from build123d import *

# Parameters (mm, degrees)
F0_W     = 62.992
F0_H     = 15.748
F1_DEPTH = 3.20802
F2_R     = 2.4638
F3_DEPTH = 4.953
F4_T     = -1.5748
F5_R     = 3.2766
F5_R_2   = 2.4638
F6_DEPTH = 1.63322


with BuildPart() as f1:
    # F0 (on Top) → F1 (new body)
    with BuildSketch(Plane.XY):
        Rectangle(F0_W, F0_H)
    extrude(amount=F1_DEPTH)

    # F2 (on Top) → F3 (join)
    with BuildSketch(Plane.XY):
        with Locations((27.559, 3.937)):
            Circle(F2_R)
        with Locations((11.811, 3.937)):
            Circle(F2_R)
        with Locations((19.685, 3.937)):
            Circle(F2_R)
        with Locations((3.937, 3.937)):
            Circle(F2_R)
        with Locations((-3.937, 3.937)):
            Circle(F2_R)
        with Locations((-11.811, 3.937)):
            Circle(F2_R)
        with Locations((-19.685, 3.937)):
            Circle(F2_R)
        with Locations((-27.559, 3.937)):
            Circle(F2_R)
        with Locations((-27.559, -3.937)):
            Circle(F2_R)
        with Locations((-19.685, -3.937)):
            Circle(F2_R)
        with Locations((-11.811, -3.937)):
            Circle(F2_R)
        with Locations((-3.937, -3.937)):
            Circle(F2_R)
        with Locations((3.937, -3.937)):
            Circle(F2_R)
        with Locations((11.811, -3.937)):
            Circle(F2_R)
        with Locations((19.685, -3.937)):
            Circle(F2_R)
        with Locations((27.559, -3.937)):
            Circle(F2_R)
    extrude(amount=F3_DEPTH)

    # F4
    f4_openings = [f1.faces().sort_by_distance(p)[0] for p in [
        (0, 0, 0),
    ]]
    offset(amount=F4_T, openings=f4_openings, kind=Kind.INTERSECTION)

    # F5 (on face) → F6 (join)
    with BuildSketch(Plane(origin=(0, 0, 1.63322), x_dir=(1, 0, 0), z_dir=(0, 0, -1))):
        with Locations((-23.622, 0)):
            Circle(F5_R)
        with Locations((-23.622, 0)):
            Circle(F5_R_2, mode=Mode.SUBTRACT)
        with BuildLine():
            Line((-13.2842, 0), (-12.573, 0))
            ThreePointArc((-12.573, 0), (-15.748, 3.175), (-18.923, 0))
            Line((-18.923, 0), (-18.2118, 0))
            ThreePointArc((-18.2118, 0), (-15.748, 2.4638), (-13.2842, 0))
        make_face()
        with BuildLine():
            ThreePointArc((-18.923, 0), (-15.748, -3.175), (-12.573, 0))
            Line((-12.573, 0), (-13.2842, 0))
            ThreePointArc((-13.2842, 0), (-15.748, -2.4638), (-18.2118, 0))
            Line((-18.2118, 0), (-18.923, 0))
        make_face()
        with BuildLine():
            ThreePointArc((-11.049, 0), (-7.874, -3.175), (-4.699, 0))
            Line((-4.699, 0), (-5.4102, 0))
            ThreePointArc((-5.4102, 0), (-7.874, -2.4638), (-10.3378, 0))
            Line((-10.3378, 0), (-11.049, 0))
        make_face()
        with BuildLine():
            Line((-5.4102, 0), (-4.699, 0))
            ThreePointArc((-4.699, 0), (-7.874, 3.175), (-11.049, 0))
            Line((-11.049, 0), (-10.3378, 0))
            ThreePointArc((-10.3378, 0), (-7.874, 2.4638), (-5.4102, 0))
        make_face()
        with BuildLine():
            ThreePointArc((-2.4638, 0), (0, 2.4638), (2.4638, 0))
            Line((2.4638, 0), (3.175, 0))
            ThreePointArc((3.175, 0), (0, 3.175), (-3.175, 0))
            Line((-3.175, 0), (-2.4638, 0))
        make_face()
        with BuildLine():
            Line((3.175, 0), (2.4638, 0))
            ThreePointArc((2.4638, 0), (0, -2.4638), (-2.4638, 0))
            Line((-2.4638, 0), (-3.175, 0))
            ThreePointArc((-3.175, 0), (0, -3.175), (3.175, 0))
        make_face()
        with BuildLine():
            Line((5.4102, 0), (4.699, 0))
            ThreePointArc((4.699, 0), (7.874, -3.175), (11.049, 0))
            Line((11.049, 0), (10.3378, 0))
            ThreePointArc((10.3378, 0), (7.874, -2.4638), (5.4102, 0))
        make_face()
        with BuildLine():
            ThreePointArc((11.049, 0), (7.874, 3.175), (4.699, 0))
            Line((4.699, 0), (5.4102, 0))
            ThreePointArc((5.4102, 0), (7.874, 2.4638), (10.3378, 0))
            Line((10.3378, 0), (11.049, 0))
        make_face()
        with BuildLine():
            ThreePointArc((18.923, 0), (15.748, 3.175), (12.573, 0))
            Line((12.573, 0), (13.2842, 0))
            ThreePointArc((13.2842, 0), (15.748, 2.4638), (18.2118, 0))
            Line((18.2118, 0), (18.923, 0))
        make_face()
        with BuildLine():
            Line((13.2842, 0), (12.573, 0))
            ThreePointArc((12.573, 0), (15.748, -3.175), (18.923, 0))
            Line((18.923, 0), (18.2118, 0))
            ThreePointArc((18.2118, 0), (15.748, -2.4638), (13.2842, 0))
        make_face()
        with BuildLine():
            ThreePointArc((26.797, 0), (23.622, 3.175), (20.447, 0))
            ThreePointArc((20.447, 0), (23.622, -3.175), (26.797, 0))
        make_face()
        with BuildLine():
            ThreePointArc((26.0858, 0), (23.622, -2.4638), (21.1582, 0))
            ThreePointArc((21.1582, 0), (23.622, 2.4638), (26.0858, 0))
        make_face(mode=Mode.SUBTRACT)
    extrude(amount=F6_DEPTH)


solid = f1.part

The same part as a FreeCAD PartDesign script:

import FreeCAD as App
import Part
import Sketcher

V = App.Vector
Q = App.Units.Quantity


def faces_at(feature, points):
    """Names of the faces that lie closest to the given points."""
    faces = feature.Shape.Faces
    near = lambda p: min(range(len(faces)), key=lambda i: faces[i].distToShape(Part.Vertex(*p))[0])
    return sorted({f"Face{near(p) + 1}" for p in points})


def add_polygon(sketch, points):
    """Adds a closed chain of lines whose ends are joined by coincident constraints."""
    first, n = sketch.GeometryCount, len(points)
    for a, b in zip(points, points[1:] + points[:1]):
        sketch.addGeometry(Part.LineSegment(App.Vector(*a, 0), App.Vector(*b, 0)), False)
    for i in range(n):
        sketch.addConstraint(Sketcher.Constraint("Coincident", first + i, 2, first + (i + 1) % n, 1))

doc = App.newDocument("Part")
body = doc.addObject("PartDesign::Body", "Body")

# Sketch on XY plane
sketch1 = body.newObject("Sketcher::SketchObject", "Sketch")
sketch1.AttachmentSupport = (doc.getObject("XY_Plane"), [""])
sketch1.MapMode = "FlatFace"
add_polygon(sketch1, [(-31, 8), (-31, -8), (31, -8), (31, 8)])  # lines 0-3
sketch1.addConstraint([
    Sketcher.Constraint("Vertical", 0),
    Sketcher.Constraint("Horizontal", 1),
    Sketcher.Constraint("Vertical", 2),
    Sketcher.Constraint("Horizontal", 3),
    Sketcher.Constraint("Symmetric", 0, 2, 2, 2, -1, 1),
    Sketcher.Constraint("DistanceX", 1, 1, 1, 2, Q("2.48 in")),
    Sketcher.Constraint("DistanceY", 0, 2, 0, 1, Q("0.62 in")),
])
pad1 = body.newObject("PartDesign::Pad", "Pad")
pad1.Profile = sketch1
pad1.Length = Q("0.1263 in")

# Sketch on XY plane
sketch2 = body.newObject("Sketcher::SketchObject", "Sketch001")
sketch2.AttachmentSupport = (doc.getObject("XY_Plane"), [""])
sketch2.MapMode = "FlatFace"
sketch2.addGeometry([
    Part.Circle(V(27.6, 3.9, 0), V(0, 0, 1), 2.5),  # 0
    Part.Circle(V(11.8, 3.9, 0), V(0, 0, 1), 2.5),  # 1
    Part.Circle(V(19.7, 3.9, 0), V(0, 0, 1), 2.5),  # 2
    Part.Circle(V(3.9, 3.9, 0), V(0, 0, 1), 2.5),  # 3
    Part.Circle(V(-3.9, 3.9, 0), V(0, 0, 1), 2.5),  # 4
    Part.Circle(V(-11.8, 3.9, 0), V(0, 0, 1), 2.5),  # 5
    Part.Circle(V(-19.7, 3.9, 0), V(0, 0, 1), 2.5),  # 6
    Part.Circle(V(-27.6, 3.9, 0), V(0, 0, 1), 2.5),  # 7
    Part.Circle(V(-27.6, -3.9, 0), V(0, 0, 1), 2.5),  # 8
    Part.Circle(V(-19.7, -3.9, 0), V(0, 0, 1), 2.5),  # 9
    Part.Circle(V(-11.8, -3.9, 0), V(0, 0, 1), 2.5),  # 10
    Part.Circle(V(-3.9, -3.9, 0), V(0, 0, 1), 2.5),  # 11
    Part.Circle(V(3.9, -3.9, 0), V(0, 0, 1), 2.5),  # 12
    Part.Circle(V(11.8, -3.9, 0), V(0, 0, 1), 2.5),  # 13
    Part.Circle(V(19.7, -3.9, 0), V(0, 0, 1), 2.5),  # 14
    Part.Circle(V(27.6, -3.9, 0), V(0, 0, 1), 2.5),  # 15
], False)
sketch2.addConstraint([
    Sketcher.Constraint("Equal", 0, 1),
    Sketcher.Constraint("Equal", 1, 2),
    Sketcher.Constraint("Equal", 2, 3),
    Sketcher.Constraint("Equal", 3, 4),
    Sketcher.Constraint("Equal", 4, 5),
    Sketcher.Constraint("Equal", 5, 6),
    Sketcher.Constraint("Equal", 6, 7),
    Sketcher.Constraint("Equal", 7, 8),
    Sketcher.Constraint("Equal", 8, 9),
    Sketcher.Constraint("Equal", 9, 10),
    Sketcher.Constraint("Equal", 10, 11),
    Sketcher.Constraint("Equal", 11, 12),
    Sketcher.Constraint("Equal", 12, 13),
    Sketcher.Constraint("Equal", 13, 14),
    Sketcher.Constraint("Equal", 14, 15),
    Sketcher.Constraint("Symmetric", 0, 3, 8, 3, -1, 1),
    Sketcher.Constraint("Symmetric", 2, 3, 9, 3, -1, 1),
    Sketcher.Constraint("Symmetric", 1, 3, 10, 3, -1, 1),
    Sketcher.Constraint("Symmetric", 3, 3, 11, 3, -1, 1),
    Sketcher.Constraint("Symmetric", 4, 3, 12, 3, -1, 1),
    Sketcher.Constraint("Symmetric", 5, 3, 13, 3, -1, 1),
    Sketcher.Constraint("Symmetric", 6, 3, 14, 3, -1, 1),
    Sketcher.Constraint("Symmetric", 7, 3, 15, 3, -1, 1),
    Sketcher.Constraint("Symmetric", 3, 3, 4, 3, -2),
    Sketcher.Constraint("Symmetric", 1, 3, 5, 3, -2),
    Sketcher.Constraint("Symmetric", 2, 3, 6, 3, -2),
    Sketcher.Constraint("Symmetric", 0, 3, 7, 3, -2),
    Sketcher.Constraint("Horizontal", 0, 3, 1, 3),
    Sketcher.Constraint("Horizontal", 1, 3, 2, 3),
    Sketcher.Constraint("Horizontal", 2, 3, 3, 3),
    Sketcher.Constraint("Diameter", 0, Q("0.194 in")),
    Sketcher.Constraint("DistanceX", 1, 3, 0, 3, Q("0.62 in")),
    Sketcher.Constraint("DistanceX", 1, 3, 2, 3, Q("0.31 in")),
    Sketcher.Constraint("DistanceX", 3, 3, 1, 3, Q("0.31 in")),
    Sketcher.Constraint("DistanceX", 4, 3, 3, 3, Q("0.31 in")),
    Sketcher.Constraint("DistanceY", 8, 3, 7, 3, Q("0.31 in")),
])
pad2 = body.newObject("PartDesign::Pad", "Pad001")
pad2.Profile = sketch2
pad2.Length = Q("0.195 in")
doc.recompute()

thickness = body.newObject("PartDesign::Thickness", "Thickness")
thickness.Base = (pad2, faces_at(pad2, [(0, 0, 0)]))
thickness.Value = Q("0.062 in")
thickness.Reversed = True
thickness.Join = "Intersection"

# Sketch on XY plane
sketch3 = body.newObject("Sketcher::SketchObject", "Sketch002")
sketch3.AttachmentSupport = (doc.getObject("XY_Plane"), [""])
sketch3.MapMode = "FlatFace"
sketch3.AttachmentOffset = App.Placement(V(0, 0, 0.0643 * 25.4), App.Rotation())
sketch3.addGeometry([
    Part.Circle(V(-23.6, 0, 0), V(0, 0, 1), 3.3),  # 0
    Part.Circle(V(-23.6, 0, 0), V(0, 0, 1), 2.5),  # 1
    Part.Circle(V(-15.7, 0, 0), V(0, 0, 1), 3.2),  # 2
    Part.Circle(V(-15.7, 0, 0), V(0, 0, 1), 2.5),  # 3
    Part.Circle(V(-7.9, 0, 0), V(0, 0, 1), 3.2),  # 4
    Part.Circle(V(-7.9, 0, 0), V(0, 0, 1), 2.5),  # 5
    Part.Circle(V(0, 0, 0), V(0, 0, 1), 3.2),  # 6
    Part.Circle(V(0, 0, 0), V(0, 0, 1), 2.5),  # 7
    Part.Circle(V(7.9, 0, 0), V(0, 0, 1), 3.2),  # 8
    Part.Circle(V(7.9, 0, 0), V(0, 0, 1), 2.5),  # 9
    Part.Circle(V(15.7, 0, 0), V(0, 0, 1), 3.2),  # 10
    Part.Circle(V(15.7, 0, 0), V(0, 0, 1), 2.5),  # 11
    Part.Circle(V(23.6, 0, 0), V(0, 0, 1), 3.2),  # 12
    Part.Circle(V(23.6, 0, 0), V(0, 0, 1), 2.5),  # 13
], False)
sketch3.addConstraint([
    Sketcher.Constraint("Coincident", 6, 3, -1, 1),
    Sketcher.Constraint("Coincident", 7, 3, -1, 1),
    Sketcher.Constraint("Coincident", 1, 3, 0, 3),
    Sketcher.Constraint("Coincident", 3, 3, 2, 3),
    Sketcher.Constraint("Coincident", 5, 3, 4, 3),
    Sketcher.Constraint("Coincident", 9, 3, 8, 3),
    Sketcher.Constraint("Coincident", 11, 3, 10, 3),
    Sketcher.Constraint("Coincident", 13, 3, 12, 3),
    Sketcher.Constraint("Equal", 1, 3),
    Sketcher.Constraint("Equal", 2, 4),
    Sketcher.Constraint("Equal", 3, 5),
    Sketcher.Constraint("Equal", 4, 6),
    Sketcher.Constraint("Equal", 5, 7),
    Sketcher.Constraint("Equal", 6, 8),
    Sketcher.Constraint("Equal", 7, 9),
    Sketcher.Constraint("Equal", 8, 10),
    Sketcher.Constraint("Equal", 9, 11),
    Sketcher.Constraint("Equal", 10, 12),
    Sketcher.Constraint("Equal", 11, 13),
    Sketcher.Constraint("Symmetric", 4, 3, 8, 3, -1, 1),
    Sketcher.Constraint("Symmetric", 2, 3, 10, 3, -1, 1),
    Sketcher.Constraint("Symmetric", 0, 3, 12, 3, -1, 1),
    Sketcher.Constraint("PointOnObject", 0, 3, -1),
    Sketcher.Constraint("PointOnObject", 2, 3, -1),
    Sketcher.Constraint("PointOnObject", 4, 3, -1),
    Sketcher.Constraint("Diameter", 2, Q("0.25 in")),
    Sketcher.Constraint("Diameter", 0, Q("0.258 in")),
    Sketcher.Constraint("Diameter", 1, Q("0.194 in")),
    Sketcher.Constraint("DistanceX", 0, 3, -1, 1, Q("0.93 in")),
    Sketcher.Constraint("DistanceX", 2, 3, -1, 1, Q("0.62 in")),
    Sketcher.Constraint("DistanceX", 4, 3, -1, 1, Q("0.31 in")),
])
pad3 = body.newObject("PartDesign::Pad", "Pad002")
pad3.Profile = sketch3
pad3.Length = Q("0.0643 in")
pad3.Reversed = True

doc.recompute()
